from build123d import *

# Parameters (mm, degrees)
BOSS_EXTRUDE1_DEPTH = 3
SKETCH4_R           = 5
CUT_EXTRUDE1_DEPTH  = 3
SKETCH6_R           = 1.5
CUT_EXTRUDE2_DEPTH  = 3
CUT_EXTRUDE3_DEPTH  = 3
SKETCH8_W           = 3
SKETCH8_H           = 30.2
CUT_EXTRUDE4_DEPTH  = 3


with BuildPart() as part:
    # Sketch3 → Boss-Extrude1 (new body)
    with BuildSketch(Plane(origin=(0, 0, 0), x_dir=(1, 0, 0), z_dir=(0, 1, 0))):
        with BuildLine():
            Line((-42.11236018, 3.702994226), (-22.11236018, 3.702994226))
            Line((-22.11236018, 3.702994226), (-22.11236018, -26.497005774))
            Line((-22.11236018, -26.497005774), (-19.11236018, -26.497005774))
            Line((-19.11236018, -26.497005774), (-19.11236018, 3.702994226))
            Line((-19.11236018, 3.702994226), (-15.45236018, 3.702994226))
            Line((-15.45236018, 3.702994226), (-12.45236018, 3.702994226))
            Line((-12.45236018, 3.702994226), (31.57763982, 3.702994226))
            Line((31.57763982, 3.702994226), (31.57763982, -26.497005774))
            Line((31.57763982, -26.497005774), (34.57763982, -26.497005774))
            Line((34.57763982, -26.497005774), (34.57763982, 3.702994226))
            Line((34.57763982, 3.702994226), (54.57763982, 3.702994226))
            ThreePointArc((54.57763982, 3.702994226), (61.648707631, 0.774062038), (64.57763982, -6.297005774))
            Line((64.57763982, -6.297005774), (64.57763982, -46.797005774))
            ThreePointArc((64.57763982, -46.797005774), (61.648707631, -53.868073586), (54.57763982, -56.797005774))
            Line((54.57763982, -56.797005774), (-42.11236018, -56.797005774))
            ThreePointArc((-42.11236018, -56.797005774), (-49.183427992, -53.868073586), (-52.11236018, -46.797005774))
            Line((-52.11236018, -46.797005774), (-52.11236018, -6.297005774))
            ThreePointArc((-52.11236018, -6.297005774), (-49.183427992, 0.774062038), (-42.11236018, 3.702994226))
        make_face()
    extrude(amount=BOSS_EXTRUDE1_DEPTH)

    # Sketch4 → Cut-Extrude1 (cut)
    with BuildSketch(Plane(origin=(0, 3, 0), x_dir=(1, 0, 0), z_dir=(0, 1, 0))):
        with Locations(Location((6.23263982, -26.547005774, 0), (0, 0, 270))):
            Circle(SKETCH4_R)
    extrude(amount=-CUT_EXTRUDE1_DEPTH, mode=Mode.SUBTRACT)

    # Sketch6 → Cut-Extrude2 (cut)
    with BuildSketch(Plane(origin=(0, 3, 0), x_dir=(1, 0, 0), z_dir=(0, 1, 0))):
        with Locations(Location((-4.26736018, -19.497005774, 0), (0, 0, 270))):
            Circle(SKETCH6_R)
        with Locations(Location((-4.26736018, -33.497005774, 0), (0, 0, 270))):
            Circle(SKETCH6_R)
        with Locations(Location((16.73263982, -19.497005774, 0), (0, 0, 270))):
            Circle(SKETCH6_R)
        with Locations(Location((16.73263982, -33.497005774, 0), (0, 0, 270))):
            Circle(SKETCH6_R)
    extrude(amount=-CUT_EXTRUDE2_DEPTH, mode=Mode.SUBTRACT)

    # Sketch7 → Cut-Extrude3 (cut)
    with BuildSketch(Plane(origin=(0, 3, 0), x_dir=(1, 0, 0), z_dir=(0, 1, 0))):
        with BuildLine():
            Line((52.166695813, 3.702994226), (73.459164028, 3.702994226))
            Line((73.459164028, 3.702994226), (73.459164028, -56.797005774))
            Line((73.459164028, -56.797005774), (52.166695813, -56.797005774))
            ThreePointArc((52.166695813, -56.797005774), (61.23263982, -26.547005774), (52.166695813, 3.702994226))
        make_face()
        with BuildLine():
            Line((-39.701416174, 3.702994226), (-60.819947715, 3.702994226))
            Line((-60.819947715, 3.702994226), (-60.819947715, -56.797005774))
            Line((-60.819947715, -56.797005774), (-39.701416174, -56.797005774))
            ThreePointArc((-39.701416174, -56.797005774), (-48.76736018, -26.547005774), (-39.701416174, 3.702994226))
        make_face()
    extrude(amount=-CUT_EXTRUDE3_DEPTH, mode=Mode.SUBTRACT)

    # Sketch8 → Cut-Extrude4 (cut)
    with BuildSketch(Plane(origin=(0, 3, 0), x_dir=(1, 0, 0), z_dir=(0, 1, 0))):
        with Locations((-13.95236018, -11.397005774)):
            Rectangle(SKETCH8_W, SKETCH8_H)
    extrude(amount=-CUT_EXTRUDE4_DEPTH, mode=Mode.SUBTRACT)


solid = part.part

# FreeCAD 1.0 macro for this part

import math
import FreeCAD as App
import Part
import Sketcher


def add_polygon(sketch, points):
    """Adds a closed chain of lines whose ends are joined by coincident constraints."""
    first, n = sketch.GeometryCount, len(points)
    for a, b in zip(points, points[1:] + points[:1]):
        sketch.addGeometry(Part.LineSegment(App.Vector(*a, 0), App.Vector(*b, 0)), False)
    for i in range(n):
        sketch.addConstraint(Sketcher.Constraint("Coincident", first + i, 2, first + (i + 1) % n, 1))

doc = App.newDocument("Part")
body = doc.addObject("PartDesign::Body", "Body")

# Sketch on XZ plane
sketch1 = doc.addObject("Sketcher::SketchObject", "Sketch")
body.addObject(sketch1)
sketch1.AttachmentSupport = (doc.XZ_Plane, [""])
sketch1.MapMode = "FlatFace"
sketch1.addGeometry(Part.LineSegment(App.Vector(-22.1, -3.7, 0), App.Vector(-42.1, -3.7, 0)), False)
sketch1.addGeometry(Part.ArcOfCircle(Part.Circle(App.Vector(-42.1, 6.3, 0), App.Vector(0, 0, 1), 10), math.radians(180), math.radians(270)), False)
sketch1.addGeometry(Part.LineSegment(App.Vector(-52.1, 6.3, 0), App.Vector(-52.1, 46.8, 0)), False)
sketch1.addGeometry(Part.ArcOfCircle(Part.Circle(App.Vector(-42.1, 46.8, 0), App.Vector(0, 0, 1), 10), math.radians(90), math.radians(180)), False)
sketch1.addGeometry(Part.LineSegment(App.Vector(-42.1, 56.8, 0), App.Vector(54.6, 56.8, 0)), False)
sketch1.addGeometry(Part.ArcOfCircle(Part.Circle(App.Vector(54.6, 46.8, 0), App.Vector(0, 0, 1), 10), math.radians(0), math.radians(90)), False)
sketch1.addGeometry(Part.LineSegment(App.Vector(64.6, 46.8, 0), App.Vector(64.6, 6.3, 0)), False)
sketch1.addGeometry(Part.ArcOfCircle(Part.Circle(App.Vector(54.6, 6.3, 0), App.Vector(0, 0, 1), 10), math.radians(-90), math.radians(0)), False)
sketch1.addGeometry(Part.LineSegment(App.Vector(54.6, -3.7, 0), App.Vector(34.6, -3.7, 0)), False)
sketch1.addGeometry(Part.LineSegment(App.Vector(34.6, -3.7, 0), App.Vector(34.6, 26.5, 0)), False)
sketch1.addGeometry(Part.LineSegment(App.Vector(34.6, 26.5, 0), App.Vector(31.6, 26.5, 0)), False)
sketch1.addGeometry(Part.LineSegment(App.Vector(31.6, 26.5, 0), App.Vector(31.6, -3.7, 0)), False)
sketch1.addGeometry(Part.LineSegment(App.Vector(31.6, -3.7, 0), App.Vector(-19.1, -3.7, 0)), False)
sketch1.addGeometry(Part.LineSegment(App.Vector(-19.1, -3.7, 0), App.Vector(-19.1, 26.5, 0)), False)
sketch1.addGeometry(Part.LineSegment(App.Vector(-19.1, 26.5, 0), App.Vector(-22.1, 26.5, 0)), False)
sketch1.addGeometry(Part.LineSegment(App.Vector(-22.1, 26.5, 0), App.Vector(-22.1, -3.7, 0)), False)
sketch1.addConstraint(Sketcher.Constraint("Tangent", 0, 2, 1, 2))
sketch1.addConstraint(Sketcher.Constraint("Tangent", 1, 1, 2, 1))
sketch1.addConstraint(Sketcher.Constraint("Tangent", 2, 2, 3, 2))
sketch1.addConstraint(Sketcher.Constraint("Tangent", 3, 1, 4, 1))
sketch1.addConstraint(Sketcher.Constraint("Tangent", 4, 2, 5, 2))
sketch1.addConstraint(Sketcher.Constraint("Tangent", 5, 1, 6, 1))
sketch1.addConstraint(Sketcher.Constraint("Tangent", 6, 2, 7, 2))
sketch1.addConstraint(Sketcher.Constraint("Tangent", 7, 1, 8, 1))
sketch1.addConstraint(Sketcher.Constraint("Coincident", 8, 2, 9, 1))
sketch1.addConstraint(Sketcher.Constraint("Coincident", 9, 2, 10, 1))
sketch1.addConstraint(Sketcher.Constraint("Coincident", 10, 2, 11, 1))
sketch1.addConstraint(Sketcher.Constraint("Coincident", 11, 2, 12, 1))
sketch1.addConstraint(Sketcher.Constraint("Coincident", 12, 2, 13, 1))
sketch1.addConstraint(Sketcher.Constraint("Coincident", 13, 2, 14, 1))
sketch1.addConstraint(Sketcher.Constraint("Coincident", 14, 2, 15, 1))
sketch1.addConstraint(Sketcher.Constraint("Coincident", 15, 2, 0, 1))
sketch1.addConstraint(Sketcher.Constraint("Horizontal", 0))
sketch1.addConstraint(Sketcher.Constraint("Vertical", 2))
sketch1.addConstraint(Sketcher.Constraint("Horizontal", 4))
sketch1.addConstraint(Sketcher.Constraint("Vertical", 6))
sketch1.addConstraint(Sketcher.Constraint("Horizontal", 8))
sketch1.addConstraint(Sketcher.Constraint("Vertical", 9))
sketch1.addConstraint(Sketcher.Constraint("Horizontal", 10))
sketch1.addConstraint(Sketcher.Constraint("Vertical", 11))
sketch1.addConstraint(Sketcher.Constraint("Horizontal", 12))
sketch1.addConstraint(Sketcher.Constraint("Vertical", 13))
sketch1.addConstraint(Sketcher.Constraint("Horizontal", 14))
sketch1.addConstraint(Sketcher.Constraint("Vertical", 15))
sketch1.addConstraint(Sketcher.Constraint("Equal", 1, 3))
sketch1.addConstraint(Sketcher.Constraint("Equal", 3, 5))
sketch1.addConstraint(Sketcher.Constraint("Equal", 5, 7))
sketch1.addConstraint(Sketcher.Constraint("Horizontal", 1, 3, 7, 3))
sketch1.addConstraint(Sketcher.Constraint("Horizontal", 8, 2, 11, 2))
sketch1.addConstraint(Sketcher.Constraint("Horizontal", 10, 2, 13, 2))
sketch1.addConstraint(Sketcher.Constraint("Equal", 0, 8))
sketch1.addConstraint(Sketcher.Constraint("Equal", 10, 14))
sketch1.addConstraint(Sketcher.Constraint("Radius", 1, 10.0))
sketch1.addConstraint(Sketcher.Constraint("DistanceX", 0, 2, 0, 1, 20.0))
sketch1.addConstraint(Sketcher.Constraint("DistanceX", 10, 2, 10, 1, 3.0))
sketch1.addConstraint(Sketcher.Constraint("DistanceY", 2, 1, 2, 2, 40.5))
sketch1.addConstraint(Sketcher.Constraint("DistanceY", 9, 1, 9, 2, 30.2))
sketch1.addConstraint(Sketcher.Constraint("DistanceX", 4, 1, 4, 2, 96.69))
sketch1.addConstraint(Sketcher.Constraint("DistanceX", 1, 3, -1, 1, 42.11236))
sketch1.addConstraint(Sketcher.Constraint("DistanceY", -1, 1, 1, 3, 6.297006))
pad1 = doc.addObject("PartDesign::Pad", "Pad")
body.addObject(pad1)
pad1.Profile = sketch1
pad1.Length = 3
pad1.Reversed = True

# Sketch on XZ plane
sketch2 = doc.addObject("Sketcher::SketchObject", "Sketch001")
body.addObject(sketch2)
sketch2.AttachmentSupport = (doc.XZ_Plane, [""])
sketch2.MapMode = "FlatFace"
sketch2.AttachmentOffset = App.Placement(App.Vector(0, 0, -3), App.Rotation())
sketch2.addGeometry(Part.Circle(App.Vector(6, 27, 0), App.Vector(0, 0, 1), 5), False)
sketch2.addConstraint(Sketcher.Constraint("Diameter", 0, 10.0))
sketch2.addConstraint(Sketcher.Constraint("DistanceX", -1, 1, 0, 3, 6.23264))
sketch2.addConstraint(Sketcher.Constraint("DistanceY", -1, 1, 0, 3, 26.547006))
pocket1 = doc.addObject("PartDesign::Pocket", "Pocket")
body.addObject(pocket1)
pocket1.Profile = sketch2
pocket1.Length = 3
pocket1.Reversed = True

# Sketch on XZ plane
sketch3 = doc.addObject("Sketcher::SketchObject", "Sketch002")
body.addObject(sketch3)
sketch3.AttachmentSupport = (doc.XZ_Plane, [""])
sketch3.MapMode = "FlatFace"
sketch3.AttachmentOffset = App.Placement(App.Vector(0, 0, -3), App.Rotation())
sketch3.addGeometry(Part.Circle(App.Vector(-4.3, 19.5, 0), App.Vector(0, 0, 1), 1.5), False)
sketch3.addGeometry(Part.Circle(App.Vector(-4.3, 33.5, 0), App.Vector(0, 0, 1), 1.5), False)
sketch3.addGeometry(Part.Circle(App.Vector(16.7, 19.5, 0), App.Vector(0, 0, 1), 1.5), False)
sketch3.addGeometry(Part.Circle(App.Vector(16.7, 33.5, 0), App.Vector(0, 0, 1), 1.5), False)
sketch3.addConstraint(Sketcher.Constraint("Equal", 0, 1))
sketch3.addConstraint(Sketcher.Constraint("Equal", 1, 2))
sketch3.addConstraint(Sketcher.Constraint("Equal", 2, 3))
sketch3.addConstraint(Sketcher.Constraint("Horizontal", 0, 3, 2, 3))
sketch3.addConstraint(Sketcher.Constraint("Horizontal", 1, 3, 3, 3))
sketch3.addConstraint(Sketcher.Constraint("Vertical", 0, 3, 1, 3))
sketch3.addConstraint(Sketcher.Constraint("Vertical", 2, 3, 3, 3))
sketch3.addConstraint(Sketcher.Constraint("Diameter", 0, 3.0))
sketch3.addConstraint(Sketcher.Constraint("DistanceY", 0, 3, 1, 3, 14.0))
sketch3.addConstraint(Sketcher.Constraint("DistanceX", 0, 3, 2, 3, 21.0))
sketch3.addConstraint(Sketcher.Constraint("DistanceX", 0, 3, -1, 1, 4.26736))
sketch3.addConstraint(Sketcher.Constraint("DistanceY", -1, 1, 0, 3, 19.497006))
pocket2 = doc.addObject("PartDesign::Pocket", "Pocket001")
body.addObject(pocket2)
pocket2.Profile = sketch3
pocket2.Length = 3
pocket2.Reversed = True

# Sketch on XZ plane
sketch4 = doc.addObject("Sketcher::SketchObject", "Sketch003")
body.addObject(sketch4)
sketch4.AttachmentSupport = (doc.XZ_Plane, [""])
sketch4.MapMode = "FlatFace"
sketch4.AttachmentOffset = App.Placement(App.Vector(0, 0, -3), App.Rotation())
sketch4.addGeometry(Part.LineSegment(App.Vector(73, -4, 0), App.Vector(52, -4, 0)), False)
sketch4.addGeometry(Part.ArcOfCircle(Part.Circle(App.Vector(6, 27, 0), App.Vector(0, 0, 1), 55), math.radians(-33), math.radians(33)), False)
sketch4.addGeometry(Part.LineSegment(App.Vector(52, 57, 0), App.Vector(73, 57, 0)), False)
sketch4.addGeometry(Part.LineSegment(App.Vector(73, 57, 0), App.Vector(73, -4, 0)), False)
sketch4.addGeometry(Part.LineSegment(App.Vector(-40, -4, 0), App.Vector(-61, -4, 0)), False)
sketch4.addGeometry(Part.LineSegment(App.Vector(-61, -4, 0), App.Vector(-61, 57, 0)), False)
sketch4.addGeometry(Part.LineSegment(App.Vector(-61, 57, 0), App.Vector(-40, 57, 0)), False)
sketch4.addGeometry(Part.ArcOfCircle(Part.Circle(App.Vector(6, 27, 0), App.Vector(0, 0, 1), 55), math.radians(147), math.radians(213)), False)
sketch4.addConstraint(Sketcher.Constraint("Coincident", 0, 2, 1, 1))
sketch4.addConstraint(Sketcher.Constraint("Coincident", 1, 2, 2, 1))
sketch4.addConstraint(Sketcher.Constraint("Coincident", 2, 2, 3, 1))
sketch4.addConstraint(Sketcher.Constraint("Coincident", 3, 2, 0, 1))
sketch4.addConstraint(Sketcher.Constraint("Coincident", 4, 2, 5, 1))
sketch4.addConstraint(Sketcher.Constraint("Coincident", 5, 2, 6, 1))
sketch4.addConstraint(Sketcher.Constraint("Coincident", 6, 2, 7, 1))
sketch4.addConstraint(Sketcher.Constraint("Coincident", 7, 2, 4, 1))
sketch4.addConstraint(Sketcher.Constraint("Horizontal", 0))
sketch4.addConstraint(Sketcher.Constraint("Horizontal", 2))
sketch4.addConstraint(Sketcher.Constraint("Vertical", 3))
sketch4.addConstraint(Sketcher.Constraint("Horizontal", 4))
sketch4.addConstraint(Sketcher.Constraint("Vertical", 5))
sketch4.addConstraint(Sketcher.Constraint("Horizontal", 6))
sketch4.addConstraint(Sketcher.Constraint("Coincident", 7, 3, 1, 3))
sketch4.addConstraint(Sketcher.Constraint("Equal", 1, 7))
sketch4.addConstraint(Sketcher.Constraint("Horizontal", 3, 2, 4, 2))
sketch4.addConstraint(Sketcher.Constraint("Horizontal", 2, 2, 5, 2))
sketch4.addConstraint(Sketcher.Constraint("Vertical", 0, 2, 1, 2))
sketch4.addConstraint(Sketcher.Constraint("Radius", 1, 55.0))
sketch4.addConstraint(Sketcher.Constraint("DistanceY", 3, 2, 3, 1, 60.5))
sketch4.addConstraint(Sketcher.Constraint("DistanceX", 0, 2, 0, 1, 21.292468))
sketch4.addConstraint(Sketcher.Constraint("DistanceX", 4, 2, 4, 1, 21.118532))
sketch4.addConstraint(Sketcher.Constraint("DistanceX", -1, 1, 1, 3, 6.23264))
sketch4.addConstraint(Sketcher.Constraint("DistanceY", -1, 1, 1, 3, 26.547006))
pocket3 = doc.addObject("PartDesign::Pocket", "Pocket002")
body.addObject(pocket3)
pocket3.Profile = sketch4
pocket3.Length = 3
pocket3.Reversed = True

# Sketch on XZ plane
sketch5 = doc.addObject("Sketcher::SketchObject", "Sketch004")
body.addObject(sketch5)
sketch5.AttachmentSupport = (doc.XZ_Plane, [""])
sketch5.MapMode = "FlatFace"
sketch5.AttachmentOffset = App.Placement(App.Vector(0, 0, -3), App.Rotation())
add_polygon(sketch5, [(-15.5, -3.7), (-15.5, 26.5), (-12.5, 26.5), (-12.5, -3.7)])  # lines 0-3
sketch5.addConstraint(Sketcher.Constraint("Vertical", 0))
sketch5.addConstraint(Sketcher.Constraint("Horizontal", 1))
sketch5.addConstraint(Sketcher.Constraint("Vertical", 2))
sketch5.addConstraint(Sketcher.Constraint("Horizontal", 3))
sketch5.addConstraint(Sketcher.Constraint("DistanceX", 1, 1, 1, 2, 3.0))
sketch5.addConstraint(Sketcher.Constraint("DistanceY", 0, 1, 0, 2, 30.2))
sketch5.addConstraint(Sketcher.Constraint("DistanceX", 0, 2, -1, 1, 15.45236))
sketch5.addConstraint(Sketcher.Constraint("DistanceY", -1, 1, 0, 2, 26.497006))
pocket4 = doc.addObject("PartDesign::Pocket", "Pocket003")
body.addObject(pocket4)
pocket4.Profile = sketch5
pocket4.Length = 3
pocket4.Reversed = True

doc.recompute()
